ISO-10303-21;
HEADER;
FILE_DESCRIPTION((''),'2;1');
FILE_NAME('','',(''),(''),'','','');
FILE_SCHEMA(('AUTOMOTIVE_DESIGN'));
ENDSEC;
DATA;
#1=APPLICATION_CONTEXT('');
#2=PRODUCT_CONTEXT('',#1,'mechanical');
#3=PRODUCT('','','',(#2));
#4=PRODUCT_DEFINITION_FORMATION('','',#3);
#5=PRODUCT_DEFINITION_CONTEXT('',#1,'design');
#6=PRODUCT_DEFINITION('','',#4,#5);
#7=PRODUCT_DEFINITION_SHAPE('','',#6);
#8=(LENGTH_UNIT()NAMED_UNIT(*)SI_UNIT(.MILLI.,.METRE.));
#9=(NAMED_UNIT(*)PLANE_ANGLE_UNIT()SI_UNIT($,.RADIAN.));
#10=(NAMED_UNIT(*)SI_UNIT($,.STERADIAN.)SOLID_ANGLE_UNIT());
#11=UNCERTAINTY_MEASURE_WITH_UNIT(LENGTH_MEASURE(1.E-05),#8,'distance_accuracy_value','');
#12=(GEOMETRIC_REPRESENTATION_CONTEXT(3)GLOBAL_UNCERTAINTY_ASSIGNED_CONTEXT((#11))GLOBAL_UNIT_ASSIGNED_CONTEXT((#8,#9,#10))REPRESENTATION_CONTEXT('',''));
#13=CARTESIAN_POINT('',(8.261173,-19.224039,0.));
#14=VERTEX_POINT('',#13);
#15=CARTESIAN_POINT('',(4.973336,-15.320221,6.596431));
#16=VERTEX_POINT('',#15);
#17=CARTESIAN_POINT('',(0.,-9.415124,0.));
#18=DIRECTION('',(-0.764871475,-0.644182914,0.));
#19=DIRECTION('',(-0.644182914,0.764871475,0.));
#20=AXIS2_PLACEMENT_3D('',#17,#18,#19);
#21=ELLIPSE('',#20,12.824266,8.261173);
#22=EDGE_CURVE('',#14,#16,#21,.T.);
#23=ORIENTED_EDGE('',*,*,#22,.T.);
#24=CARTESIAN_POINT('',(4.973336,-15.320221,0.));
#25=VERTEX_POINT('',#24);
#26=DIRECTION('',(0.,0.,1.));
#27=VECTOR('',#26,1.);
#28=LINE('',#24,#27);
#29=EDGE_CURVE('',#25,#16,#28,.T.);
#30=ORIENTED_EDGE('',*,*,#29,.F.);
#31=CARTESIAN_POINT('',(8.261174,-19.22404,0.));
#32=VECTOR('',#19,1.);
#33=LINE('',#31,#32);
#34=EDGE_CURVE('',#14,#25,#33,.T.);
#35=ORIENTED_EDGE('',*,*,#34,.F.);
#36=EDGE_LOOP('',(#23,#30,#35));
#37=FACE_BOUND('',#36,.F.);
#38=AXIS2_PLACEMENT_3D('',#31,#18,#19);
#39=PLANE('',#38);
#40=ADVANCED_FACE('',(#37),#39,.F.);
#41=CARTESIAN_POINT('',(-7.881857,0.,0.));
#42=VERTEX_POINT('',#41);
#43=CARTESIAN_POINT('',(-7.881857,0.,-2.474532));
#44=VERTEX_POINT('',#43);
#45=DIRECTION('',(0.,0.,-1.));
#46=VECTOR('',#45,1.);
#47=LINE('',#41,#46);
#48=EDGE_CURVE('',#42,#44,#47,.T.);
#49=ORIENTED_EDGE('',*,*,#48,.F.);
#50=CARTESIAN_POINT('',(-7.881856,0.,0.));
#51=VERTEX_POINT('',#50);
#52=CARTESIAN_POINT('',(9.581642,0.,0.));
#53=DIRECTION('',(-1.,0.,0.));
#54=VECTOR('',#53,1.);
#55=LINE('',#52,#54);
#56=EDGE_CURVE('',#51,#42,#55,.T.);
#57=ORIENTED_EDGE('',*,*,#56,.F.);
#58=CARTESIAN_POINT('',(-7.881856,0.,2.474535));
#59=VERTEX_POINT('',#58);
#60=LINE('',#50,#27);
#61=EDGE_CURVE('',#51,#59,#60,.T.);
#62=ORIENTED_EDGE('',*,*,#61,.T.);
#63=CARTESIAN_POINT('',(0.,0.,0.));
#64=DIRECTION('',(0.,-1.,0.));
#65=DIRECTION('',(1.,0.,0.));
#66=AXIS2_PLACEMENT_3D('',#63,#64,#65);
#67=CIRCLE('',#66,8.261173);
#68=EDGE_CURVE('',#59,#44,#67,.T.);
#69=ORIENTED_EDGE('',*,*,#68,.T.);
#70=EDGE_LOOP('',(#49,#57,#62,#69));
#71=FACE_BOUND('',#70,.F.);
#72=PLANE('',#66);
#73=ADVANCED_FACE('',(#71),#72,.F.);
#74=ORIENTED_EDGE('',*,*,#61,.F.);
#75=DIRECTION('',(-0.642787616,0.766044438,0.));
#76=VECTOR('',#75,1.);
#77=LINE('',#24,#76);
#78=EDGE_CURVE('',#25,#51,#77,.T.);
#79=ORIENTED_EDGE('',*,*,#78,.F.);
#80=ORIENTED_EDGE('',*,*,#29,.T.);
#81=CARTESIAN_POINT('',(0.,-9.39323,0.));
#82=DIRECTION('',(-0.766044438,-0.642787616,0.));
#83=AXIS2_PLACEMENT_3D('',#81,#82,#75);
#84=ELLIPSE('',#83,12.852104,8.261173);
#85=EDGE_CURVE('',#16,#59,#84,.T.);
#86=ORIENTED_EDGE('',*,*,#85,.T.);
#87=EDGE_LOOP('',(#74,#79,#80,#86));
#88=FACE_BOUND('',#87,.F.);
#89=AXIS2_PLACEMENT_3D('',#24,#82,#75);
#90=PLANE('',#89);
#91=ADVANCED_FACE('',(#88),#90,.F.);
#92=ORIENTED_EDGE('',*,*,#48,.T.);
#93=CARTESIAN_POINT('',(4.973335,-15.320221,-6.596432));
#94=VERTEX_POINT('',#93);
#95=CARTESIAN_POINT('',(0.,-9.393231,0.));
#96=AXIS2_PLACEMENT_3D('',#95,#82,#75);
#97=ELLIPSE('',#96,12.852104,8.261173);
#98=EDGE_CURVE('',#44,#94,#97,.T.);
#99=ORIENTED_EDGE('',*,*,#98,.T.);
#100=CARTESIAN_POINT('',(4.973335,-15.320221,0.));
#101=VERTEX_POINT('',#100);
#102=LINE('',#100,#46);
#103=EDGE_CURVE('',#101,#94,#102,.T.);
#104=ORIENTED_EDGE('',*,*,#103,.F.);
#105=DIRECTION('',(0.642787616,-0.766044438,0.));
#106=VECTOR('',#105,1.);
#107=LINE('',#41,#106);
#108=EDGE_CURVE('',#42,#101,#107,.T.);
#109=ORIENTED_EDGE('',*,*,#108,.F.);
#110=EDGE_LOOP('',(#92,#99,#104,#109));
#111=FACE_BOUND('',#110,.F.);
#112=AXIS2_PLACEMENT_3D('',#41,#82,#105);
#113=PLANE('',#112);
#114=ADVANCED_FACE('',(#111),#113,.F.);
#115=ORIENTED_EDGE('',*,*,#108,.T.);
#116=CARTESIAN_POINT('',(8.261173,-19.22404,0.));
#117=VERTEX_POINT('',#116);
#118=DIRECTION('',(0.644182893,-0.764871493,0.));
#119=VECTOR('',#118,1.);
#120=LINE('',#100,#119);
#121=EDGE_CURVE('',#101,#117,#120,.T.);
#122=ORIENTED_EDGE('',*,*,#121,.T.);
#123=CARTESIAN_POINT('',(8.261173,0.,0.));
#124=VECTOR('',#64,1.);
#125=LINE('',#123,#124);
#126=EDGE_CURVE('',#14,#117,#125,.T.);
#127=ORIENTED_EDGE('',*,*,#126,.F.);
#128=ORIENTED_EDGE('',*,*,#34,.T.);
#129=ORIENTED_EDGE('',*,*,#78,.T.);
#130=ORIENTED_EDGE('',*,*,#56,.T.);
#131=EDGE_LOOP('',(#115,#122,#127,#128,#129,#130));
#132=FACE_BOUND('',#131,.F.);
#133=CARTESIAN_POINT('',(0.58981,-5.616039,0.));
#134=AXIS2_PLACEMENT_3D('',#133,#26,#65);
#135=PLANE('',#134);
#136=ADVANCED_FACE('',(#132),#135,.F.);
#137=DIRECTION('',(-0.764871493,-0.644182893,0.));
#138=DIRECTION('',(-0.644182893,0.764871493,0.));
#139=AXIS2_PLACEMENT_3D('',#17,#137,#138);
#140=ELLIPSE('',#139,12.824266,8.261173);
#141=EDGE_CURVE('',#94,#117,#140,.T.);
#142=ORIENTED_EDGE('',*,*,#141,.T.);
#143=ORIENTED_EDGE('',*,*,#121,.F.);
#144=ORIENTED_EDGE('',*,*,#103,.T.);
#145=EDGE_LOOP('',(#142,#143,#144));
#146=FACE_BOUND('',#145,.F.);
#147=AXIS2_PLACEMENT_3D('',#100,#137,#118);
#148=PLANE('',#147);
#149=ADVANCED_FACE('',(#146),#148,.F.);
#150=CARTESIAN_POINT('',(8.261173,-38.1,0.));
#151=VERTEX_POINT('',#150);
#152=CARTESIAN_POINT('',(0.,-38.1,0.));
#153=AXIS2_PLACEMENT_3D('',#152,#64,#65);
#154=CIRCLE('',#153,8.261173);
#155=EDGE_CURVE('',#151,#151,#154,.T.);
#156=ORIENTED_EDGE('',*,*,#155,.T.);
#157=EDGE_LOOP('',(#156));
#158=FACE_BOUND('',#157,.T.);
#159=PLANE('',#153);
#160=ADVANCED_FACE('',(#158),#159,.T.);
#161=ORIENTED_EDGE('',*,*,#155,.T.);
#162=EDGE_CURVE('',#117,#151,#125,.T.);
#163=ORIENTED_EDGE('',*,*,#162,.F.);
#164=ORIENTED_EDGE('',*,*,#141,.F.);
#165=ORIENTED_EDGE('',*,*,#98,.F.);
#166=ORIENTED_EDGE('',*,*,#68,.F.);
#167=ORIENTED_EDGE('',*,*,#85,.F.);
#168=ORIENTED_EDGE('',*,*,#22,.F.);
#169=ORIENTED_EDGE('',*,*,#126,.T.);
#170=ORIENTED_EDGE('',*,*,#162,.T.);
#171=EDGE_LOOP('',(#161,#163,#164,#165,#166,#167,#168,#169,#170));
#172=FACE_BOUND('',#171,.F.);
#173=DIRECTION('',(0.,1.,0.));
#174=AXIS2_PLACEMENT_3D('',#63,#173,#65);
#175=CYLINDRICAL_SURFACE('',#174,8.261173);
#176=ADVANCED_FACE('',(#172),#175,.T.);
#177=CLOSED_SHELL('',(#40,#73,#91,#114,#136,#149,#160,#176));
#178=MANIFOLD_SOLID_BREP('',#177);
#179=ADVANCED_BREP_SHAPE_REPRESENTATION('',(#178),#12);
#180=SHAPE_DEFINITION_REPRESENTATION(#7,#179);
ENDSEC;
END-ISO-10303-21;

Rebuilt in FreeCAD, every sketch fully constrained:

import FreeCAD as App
import Part
import Sketcher

V = App.Vector
Q = App.Units.Quantity

doc = App.newDocument("Part")
params = doc.addObject("Spreadsheet::Sheet", "Params")
for row, (alias, value) in enumerate([
    ("pad1_length", "1.5 in"),
    ("pocket1_length", "56.62504 mm"),
    ("pocket2_length", "1 in"),
], start=1):
    params.set(f"A{row}", alias)
    params.set(f"B{row}", "=" + value)
    params.setAlias(f"B{row}", alias)

body = doc.addObject("PartDesign::Body", "Body")

# Sketch on XZ plane
sketch1 = doc.addObject("Sketcher::SketchObject", "Sketch")
body.addObject(sketch1)
sketch1.AttachmentSupport = (doc.XZ_Plane, [""])
sketch1.MapMode = "FlatFace"
sketch1.addGeometry(Part.Circle(V(0, 0, 0), V(0, 0, 1), 8), False)
sketch1.addConstraint([
    Sketcher.Constraint("Coincident", 0, 3, -1, 1),
    Sketcher.Constraint("Diameter", 0, Q("16.522346 mm")),
])
pad1 = doc.addObject("PartDesign::Pad", "Pad")
body.addObject(pad1)
pad1.Profile = sketch1
pad1.setExpression("Length", "Params.pad1_length")

# Sketch on XY plane
sketch2 = doc.addObject("Sketcher::SketchObject", "Sketch001")
body.addObject(sketch2)
sketch2.AttachmentSupport = (doc.XY_Plane, [""])
sketch2.MapMode = "FlatFace"
sketch2.addGeometry([
    Part.LineSegment(V(-8, 0, 0), V(5, -15, 0)),
    Part.LineSegment(V(5, -15, 0), V(10, -21, 0)),
    Part.LineSegment(V(10, -21, 0), V(10, 0, 0)),
    Part.LineSegment(V(10, 0, 0), V(-8, 0, 0)),
], False)
sketch2.addConstraint([
    Sketcher.Constraint("Coincident", 0, 2, 1, 1),
    Sketcher.Constraint("Coincident", 1, 2, 2, 1),
    Sketcher.Constraint("Coincident", 2, 2, 3, 1),
    Sketcher.Constraint("Coincident", 3, 2, 0, 1),
    Sketcher.Constraint("Vertical", 2),
    Sketcher.Constraint("Horizontal", 3),
    Sketcher.Constraint("PointOnObject", 2, 2, -1),
    Sketcher.Constraint("Angle", 0, Q("-50 deg")),
    Sketcher.Constraint("DistanceX", 3, 2, 3, 1, Q("17.463499 mm")),
    Sketcher.Constraint("DistanceY", 2, 1, 2, 2, Q("20.791901 mm")),
    Sketcher.Constraint("Distance", 0, Q("19.999128 mm")),
    Sketcher.Constraint("DistanceX", -1, 1, 0, 2, Q("4.973335 mm")),
])
pocket1 = doc.addObject("PartDesign::Pocket", "Pocket")
body.addObject(pocket1)
pocket1.Profile = sketch2
pocket1.setExpression("Length", "Params.pocket1_length")

# Sketch on XY plane
sketch3 = doc.addObject("Sketcher::SketchObject", "Sketch002")
body.addObject(sketch3)
sketch3.AttachmentSupport = (doc.XY_Plane, [""])
sketch3.MapMode = "FlatFace"
sketch3.addGeometry([
    Part.LineSegment(V(-8, 0, 0), V(8, 0, 0)),
    Part.LineSegment(V(8, 0, 0), V(8, -19, 0)),
    Part.LineSegment(V(8, -19, 0), V(5, -15, 0)),
    Part.LineSegment(V(5, -15, 0), V(-8, 0, 0)),
], False)
sketch3.addConstraint([
    Sketcher.Constraint("Coincident", 0, 2, 1, 1),
    Sketcher.Constraint("Coincident", 1, 2, 2, 1),
    Sketcher.Constraint("Coincident", 2, 2, 3, 1),
    Sketcher.Constraint("Coincident", 3, 2, 0, 1),
    Sketcher.Constraint("Horizontal", 0),
    Sketcher.Constraint("Vertical", 1),
    Sketcher.Constraint("PointOnObject", 0, 2, -1),
    Sketcher.Constraint("Angle", 3, Q("130 deg")),
    Sketcher.Constraint("DistanceX", 0, 1, 0, 2, Q("16.14303 mm")),
    Sketcher.Constraint("DistanceY", 1, 2, 1, 1, Q("19.22404 mm")),
    Sketcher.Constraint("Distance", 2, Q("5.103889 mm")),
    Sketcher.Constraint("DistanceX", -1, 1, 0, 2, Q("8.261174 mm")),
])
pocket2 = doc.addObject("PartDesign::Pocket", "Pocket001")
body.addObject(pocket2)
pocket2.Profile = sketch3
pocket2.setExpression("Length", "Params.pocket2_length")
pocket2.Reversed = True

doc.recompute()
